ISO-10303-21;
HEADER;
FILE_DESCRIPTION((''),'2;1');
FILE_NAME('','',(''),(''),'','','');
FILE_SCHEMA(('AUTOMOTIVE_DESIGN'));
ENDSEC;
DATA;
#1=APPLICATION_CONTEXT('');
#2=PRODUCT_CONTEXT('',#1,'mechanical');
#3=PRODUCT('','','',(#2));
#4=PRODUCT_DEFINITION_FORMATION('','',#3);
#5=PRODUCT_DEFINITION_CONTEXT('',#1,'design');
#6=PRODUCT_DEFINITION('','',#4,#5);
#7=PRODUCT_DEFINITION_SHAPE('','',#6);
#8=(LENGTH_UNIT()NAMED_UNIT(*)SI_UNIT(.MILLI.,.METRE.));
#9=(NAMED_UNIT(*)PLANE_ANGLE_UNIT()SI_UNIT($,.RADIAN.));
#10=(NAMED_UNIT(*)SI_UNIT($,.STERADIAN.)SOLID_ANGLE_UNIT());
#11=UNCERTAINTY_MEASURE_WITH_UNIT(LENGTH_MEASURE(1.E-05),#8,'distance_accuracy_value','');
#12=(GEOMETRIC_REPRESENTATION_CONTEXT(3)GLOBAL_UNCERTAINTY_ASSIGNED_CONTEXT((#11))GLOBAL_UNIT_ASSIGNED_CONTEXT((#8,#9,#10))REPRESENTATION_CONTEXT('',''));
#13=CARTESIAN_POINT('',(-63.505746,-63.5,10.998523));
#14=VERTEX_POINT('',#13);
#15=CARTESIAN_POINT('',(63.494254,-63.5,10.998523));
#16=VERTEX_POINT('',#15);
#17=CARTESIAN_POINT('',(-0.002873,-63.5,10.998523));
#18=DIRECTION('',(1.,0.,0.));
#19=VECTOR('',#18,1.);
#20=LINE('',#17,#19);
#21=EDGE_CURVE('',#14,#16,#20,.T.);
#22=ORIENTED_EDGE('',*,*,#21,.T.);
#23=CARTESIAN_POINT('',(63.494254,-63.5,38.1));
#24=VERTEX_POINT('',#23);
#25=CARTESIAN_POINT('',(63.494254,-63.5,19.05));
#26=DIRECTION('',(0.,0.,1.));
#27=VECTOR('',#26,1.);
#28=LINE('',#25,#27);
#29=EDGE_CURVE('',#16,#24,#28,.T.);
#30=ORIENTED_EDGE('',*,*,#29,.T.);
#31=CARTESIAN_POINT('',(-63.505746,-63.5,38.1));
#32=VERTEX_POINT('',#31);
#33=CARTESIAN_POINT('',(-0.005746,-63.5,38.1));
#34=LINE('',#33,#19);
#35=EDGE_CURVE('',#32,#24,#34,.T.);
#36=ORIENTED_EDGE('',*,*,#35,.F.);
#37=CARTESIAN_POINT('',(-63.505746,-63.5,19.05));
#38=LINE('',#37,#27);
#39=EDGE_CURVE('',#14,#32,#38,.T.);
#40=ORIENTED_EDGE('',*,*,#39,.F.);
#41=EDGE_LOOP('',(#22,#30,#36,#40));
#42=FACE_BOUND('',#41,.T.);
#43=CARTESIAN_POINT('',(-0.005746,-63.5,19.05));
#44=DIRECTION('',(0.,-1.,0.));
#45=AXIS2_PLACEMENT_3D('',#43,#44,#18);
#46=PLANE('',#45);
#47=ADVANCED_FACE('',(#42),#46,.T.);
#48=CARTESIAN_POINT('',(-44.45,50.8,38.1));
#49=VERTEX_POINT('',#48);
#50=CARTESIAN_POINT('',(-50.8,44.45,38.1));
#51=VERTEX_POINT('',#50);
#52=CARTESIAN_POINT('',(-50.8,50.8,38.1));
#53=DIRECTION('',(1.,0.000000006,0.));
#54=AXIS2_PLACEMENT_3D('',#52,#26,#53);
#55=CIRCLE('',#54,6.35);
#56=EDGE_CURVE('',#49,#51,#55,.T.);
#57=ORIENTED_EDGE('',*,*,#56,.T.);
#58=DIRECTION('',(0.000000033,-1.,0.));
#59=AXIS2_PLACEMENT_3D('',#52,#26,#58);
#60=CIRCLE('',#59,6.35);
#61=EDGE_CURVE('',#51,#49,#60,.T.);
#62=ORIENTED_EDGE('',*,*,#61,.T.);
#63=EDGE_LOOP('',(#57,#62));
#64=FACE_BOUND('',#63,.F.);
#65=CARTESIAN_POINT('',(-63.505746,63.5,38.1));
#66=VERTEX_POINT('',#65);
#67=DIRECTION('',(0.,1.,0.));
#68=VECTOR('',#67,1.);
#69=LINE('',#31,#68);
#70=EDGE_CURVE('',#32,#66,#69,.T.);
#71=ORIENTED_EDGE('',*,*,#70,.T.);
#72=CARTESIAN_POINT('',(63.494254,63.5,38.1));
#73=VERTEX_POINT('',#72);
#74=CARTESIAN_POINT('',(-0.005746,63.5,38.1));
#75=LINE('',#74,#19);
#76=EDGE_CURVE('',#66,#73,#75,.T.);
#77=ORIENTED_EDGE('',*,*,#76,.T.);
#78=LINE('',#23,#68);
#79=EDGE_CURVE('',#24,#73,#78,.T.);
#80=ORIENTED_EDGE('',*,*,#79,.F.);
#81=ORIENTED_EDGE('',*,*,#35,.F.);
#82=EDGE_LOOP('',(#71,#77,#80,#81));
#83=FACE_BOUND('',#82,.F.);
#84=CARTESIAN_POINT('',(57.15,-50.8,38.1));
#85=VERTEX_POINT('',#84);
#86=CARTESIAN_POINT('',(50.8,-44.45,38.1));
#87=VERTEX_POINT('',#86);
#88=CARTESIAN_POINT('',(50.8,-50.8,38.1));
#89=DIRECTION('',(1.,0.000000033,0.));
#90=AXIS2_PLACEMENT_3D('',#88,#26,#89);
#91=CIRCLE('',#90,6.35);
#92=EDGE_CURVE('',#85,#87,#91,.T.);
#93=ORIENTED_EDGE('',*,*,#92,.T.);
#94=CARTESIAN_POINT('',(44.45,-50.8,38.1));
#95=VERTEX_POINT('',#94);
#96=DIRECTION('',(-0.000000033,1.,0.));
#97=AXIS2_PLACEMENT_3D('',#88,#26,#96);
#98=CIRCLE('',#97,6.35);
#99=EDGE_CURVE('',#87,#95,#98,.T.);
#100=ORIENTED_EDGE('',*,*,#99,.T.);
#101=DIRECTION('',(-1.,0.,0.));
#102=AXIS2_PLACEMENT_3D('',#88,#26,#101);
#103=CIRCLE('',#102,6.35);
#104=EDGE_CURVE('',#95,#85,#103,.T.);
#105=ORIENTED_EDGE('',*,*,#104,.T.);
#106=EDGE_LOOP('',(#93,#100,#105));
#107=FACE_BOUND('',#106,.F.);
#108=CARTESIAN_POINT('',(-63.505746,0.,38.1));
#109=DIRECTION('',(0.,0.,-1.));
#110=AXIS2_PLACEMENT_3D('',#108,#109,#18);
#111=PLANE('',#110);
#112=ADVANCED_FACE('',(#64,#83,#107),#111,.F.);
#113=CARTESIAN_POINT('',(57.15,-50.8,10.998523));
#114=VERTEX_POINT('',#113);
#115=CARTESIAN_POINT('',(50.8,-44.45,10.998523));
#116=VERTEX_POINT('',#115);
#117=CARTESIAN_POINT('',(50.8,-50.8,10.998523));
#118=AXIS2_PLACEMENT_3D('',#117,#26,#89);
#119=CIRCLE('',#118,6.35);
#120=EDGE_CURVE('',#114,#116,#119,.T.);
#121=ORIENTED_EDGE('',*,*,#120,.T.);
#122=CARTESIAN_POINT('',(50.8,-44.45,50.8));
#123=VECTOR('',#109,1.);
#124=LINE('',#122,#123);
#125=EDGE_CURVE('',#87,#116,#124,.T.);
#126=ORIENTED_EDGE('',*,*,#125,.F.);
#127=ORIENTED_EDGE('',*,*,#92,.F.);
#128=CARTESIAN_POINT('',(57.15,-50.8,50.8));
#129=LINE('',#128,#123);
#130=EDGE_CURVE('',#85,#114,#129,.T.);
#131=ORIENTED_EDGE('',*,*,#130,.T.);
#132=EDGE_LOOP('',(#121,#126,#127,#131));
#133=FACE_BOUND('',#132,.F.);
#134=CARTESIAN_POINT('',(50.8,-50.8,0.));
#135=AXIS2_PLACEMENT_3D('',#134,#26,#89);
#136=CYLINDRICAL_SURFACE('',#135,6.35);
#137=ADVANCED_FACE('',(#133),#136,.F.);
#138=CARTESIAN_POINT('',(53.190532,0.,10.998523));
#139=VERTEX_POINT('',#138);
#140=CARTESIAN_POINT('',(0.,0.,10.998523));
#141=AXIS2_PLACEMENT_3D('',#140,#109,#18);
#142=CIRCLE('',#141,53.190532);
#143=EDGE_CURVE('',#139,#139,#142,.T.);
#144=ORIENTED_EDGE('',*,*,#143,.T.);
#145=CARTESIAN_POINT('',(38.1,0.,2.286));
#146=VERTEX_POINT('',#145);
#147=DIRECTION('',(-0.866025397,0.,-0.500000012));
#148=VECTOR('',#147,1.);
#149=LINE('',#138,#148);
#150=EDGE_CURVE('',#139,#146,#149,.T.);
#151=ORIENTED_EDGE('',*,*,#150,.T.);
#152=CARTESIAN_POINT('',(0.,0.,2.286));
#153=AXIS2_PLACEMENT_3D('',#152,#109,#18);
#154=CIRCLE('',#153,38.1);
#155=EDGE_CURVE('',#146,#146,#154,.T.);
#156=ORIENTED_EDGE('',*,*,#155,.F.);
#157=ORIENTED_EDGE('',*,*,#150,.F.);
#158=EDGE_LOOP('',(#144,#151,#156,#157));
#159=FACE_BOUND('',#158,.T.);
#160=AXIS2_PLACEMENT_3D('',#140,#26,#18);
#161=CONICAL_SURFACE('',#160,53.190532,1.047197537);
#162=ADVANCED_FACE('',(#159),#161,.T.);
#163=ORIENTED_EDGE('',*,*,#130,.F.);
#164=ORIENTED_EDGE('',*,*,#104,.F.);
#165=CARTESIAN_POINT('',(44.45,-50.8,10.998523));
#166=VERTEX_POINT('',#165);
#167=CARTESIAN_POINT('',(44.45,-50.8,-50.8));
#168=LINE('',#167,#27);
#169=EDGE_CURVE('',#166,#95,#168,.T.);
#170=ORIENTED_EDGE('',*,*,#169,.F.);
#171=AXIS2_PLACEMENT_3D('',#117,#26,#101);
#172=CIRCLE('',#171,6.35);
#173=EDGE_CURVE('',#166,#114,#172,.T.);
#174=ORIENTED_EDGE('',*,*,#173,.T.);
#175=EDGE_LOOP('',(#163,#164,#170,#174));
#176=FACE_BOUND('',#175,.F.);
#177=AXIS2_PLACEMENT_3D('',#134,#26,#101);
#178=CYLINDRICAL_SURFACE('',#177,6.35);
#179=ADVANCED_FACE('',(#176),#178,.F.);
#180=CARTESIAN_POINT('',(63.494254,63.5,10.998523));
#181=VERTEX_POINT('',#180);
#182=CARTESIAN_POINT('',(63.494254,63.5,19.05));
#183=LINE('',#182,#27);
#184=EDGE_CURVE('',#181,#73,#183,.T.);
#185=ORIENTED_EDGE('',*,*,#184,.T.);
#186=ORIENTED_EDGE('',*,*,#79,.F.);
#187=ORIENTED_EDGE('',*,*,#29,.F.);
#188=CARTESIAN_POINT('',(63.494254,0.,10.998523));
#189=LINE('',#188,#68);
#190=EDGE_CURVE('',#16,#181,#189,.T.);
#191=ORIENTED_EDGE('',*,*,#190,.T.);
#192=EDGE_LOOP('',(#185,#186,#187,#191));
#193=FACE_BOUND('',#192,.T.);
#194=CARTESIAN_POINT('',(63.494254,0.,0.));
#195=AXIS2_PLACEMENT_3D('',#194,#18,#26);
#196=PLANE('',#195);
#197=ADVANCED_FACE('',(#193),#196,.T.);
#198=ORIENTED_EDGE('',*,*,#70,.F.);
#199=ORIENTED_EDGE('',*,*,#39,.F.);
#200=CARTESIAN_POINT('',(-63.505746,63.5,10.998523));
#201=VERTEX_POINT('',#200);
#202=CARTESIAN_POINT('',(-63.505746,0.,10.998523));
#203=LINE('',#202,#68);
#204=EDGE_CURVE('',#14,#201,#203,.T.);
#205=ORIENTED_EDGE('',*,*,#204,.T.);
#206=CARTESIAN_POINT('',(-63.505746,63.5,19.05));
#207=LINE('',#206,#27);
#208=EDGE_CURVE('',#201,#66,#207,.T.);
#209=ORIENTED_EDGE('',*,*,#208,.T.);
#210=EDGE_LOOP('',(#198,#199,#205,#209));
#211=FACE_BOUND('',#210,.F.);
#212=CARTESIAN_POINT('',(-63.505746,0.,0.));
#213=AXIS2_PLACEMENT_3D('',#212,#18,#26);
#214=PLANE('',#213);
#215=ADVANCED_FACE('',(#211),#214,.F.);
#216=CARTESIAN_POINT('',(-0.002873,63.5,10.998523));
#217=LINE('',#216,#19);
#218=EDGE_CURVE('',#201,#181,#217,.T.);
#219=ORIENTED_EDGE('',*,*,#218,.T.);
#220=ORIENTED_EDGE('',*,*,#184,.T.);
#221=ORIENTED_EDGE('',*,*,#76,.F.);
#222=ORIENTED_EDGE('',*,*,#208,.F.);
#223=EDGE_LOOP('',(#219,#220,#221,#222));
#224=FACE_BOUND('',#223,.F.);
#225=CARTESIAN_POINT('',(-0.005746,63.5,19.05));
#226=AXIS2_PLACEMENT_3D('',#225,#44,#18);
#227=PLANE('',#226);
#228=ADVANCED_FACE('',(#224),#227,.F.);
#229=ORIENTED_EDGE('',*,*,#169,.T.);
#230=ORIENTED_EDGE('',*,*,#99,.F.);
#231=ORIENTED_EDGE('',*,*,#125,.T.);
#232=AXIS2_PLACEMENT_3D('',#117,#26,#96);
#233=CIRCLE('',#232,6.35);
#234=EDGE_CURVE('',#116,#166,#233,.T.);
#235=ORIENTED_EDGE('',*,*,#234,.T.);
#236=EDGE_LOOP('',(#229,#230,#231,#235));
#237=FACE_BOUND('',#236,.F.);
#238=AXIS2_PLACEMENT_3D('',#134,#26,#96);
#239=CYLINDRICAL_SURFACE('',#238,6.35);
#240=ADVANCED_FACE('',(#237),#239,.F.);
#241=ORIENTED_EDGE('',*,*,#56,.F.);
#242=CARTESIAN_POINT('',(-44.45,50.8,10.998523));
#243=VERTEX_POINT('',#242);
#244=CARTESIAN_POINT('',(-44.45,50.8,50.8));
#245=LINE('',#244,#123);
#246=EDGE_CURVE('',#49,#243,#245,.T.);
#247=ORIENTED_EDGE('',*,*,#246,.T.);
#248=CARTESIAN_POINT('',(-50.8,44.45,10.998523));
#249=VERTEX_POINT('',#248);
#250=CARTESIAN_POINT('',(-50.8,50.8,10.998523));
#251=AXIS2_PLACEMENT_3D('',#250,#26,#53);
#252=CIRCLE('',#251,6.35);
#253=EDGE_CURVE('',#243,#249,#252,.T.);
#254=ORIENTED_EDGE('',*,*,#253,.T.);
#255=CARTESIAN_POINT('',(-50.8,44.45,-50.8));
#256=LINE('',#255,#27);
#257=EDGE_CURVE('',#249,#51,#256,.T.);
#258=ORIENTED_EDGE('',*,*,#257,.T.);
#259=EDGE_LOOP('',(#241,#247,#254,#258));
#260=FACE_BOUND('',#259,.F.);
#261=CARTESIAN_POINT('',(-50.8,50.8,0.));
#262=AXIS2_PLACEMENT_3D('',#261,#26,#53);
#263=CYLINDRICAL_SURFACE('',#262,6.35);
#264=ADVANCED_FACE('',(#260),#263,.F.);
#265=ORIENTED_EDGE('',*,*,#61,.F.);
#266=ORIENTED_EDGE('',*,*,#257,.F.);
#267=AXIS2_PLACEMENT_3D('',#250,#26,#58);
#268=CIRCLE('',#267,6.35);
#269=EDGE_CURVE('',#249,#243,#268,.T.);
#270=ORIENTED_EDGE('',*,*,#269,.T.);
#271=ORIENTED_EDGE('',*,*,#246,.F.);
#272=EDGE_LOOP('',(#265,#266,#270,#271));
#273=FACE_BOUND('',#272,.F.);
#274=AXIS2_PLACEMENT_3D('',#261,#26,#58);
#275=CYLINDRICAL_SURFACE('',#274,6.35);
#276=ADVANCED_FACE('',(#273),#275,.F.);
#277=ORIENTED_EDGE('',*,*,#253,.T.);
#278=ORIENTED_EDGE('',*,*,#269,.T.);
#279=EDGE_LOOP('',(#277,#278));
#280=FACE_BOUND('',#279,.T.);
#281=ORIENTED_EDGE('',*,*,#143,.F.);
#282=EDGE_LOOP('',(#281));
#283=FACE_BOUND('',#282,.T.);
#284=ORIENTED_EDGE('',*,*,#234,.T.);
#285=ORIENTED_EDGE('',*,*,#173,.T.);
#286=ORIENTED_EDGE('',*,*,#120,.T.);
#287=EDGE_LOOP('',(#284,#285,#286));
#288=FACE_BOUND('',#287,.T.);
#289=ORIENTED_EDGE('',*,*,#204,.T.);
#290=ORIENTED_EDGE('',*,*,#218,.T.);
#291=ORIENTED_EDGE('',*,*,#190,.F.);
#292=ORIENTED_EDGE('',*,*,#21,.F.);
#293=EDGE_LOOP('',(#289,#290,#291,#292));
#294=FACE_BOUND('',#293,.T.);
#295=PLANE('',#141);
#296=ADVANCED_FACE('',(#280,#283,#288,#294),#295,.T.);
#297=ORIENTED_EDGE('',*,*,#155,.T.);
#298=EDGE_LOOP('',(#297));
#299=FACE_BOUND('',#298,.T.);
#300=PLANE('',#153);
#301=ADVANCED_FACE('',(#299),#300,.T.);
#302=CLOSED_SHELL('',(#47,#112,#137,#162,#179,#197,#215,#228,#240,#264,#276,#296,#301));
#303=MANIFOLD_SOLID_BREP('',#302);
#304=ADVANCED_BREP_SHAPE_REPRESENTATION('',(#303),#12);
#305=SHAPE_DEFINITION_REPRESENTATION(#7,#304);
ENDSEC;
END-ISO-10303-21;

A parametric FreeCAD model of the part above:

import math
import FreeCAD as App
import Part
import Sketcher
Q = App.Units.Quantity


def add_polygon(sketch, points):
    """Adds a closed chain of lines whose ends are joined by coincident constraints."""
    first, n = sketch.GeometryCount, len(points)
    for a, b in zip(points, points[1:] + points[:1]):
        sketch.addGeometry(Part.LineSegment(App.Vector(*a, 0), App.Vector(*b, 0)), False)
    for i in range(n):
        sketch.addConstraint(Sketcher.Constraint("Coincident", first + i, 2, first + (i + 1) % n, 1))

doc = App.newDocument("Part")
body = doc.addObject("PartDesign::Body", "Body")

# Sketch on XZ plane
sketch1 = body.newObject("Sketcher::SketchObject", "Sketch")
sketch1.AttachmentSupport = (doc.getObject("XZ_Plane"), [""])
sketch1.MapMode = "FlatFace"
add_polygon(sketch1, [(-63.505746, 38.1), (-63.505746, 0), (63.494254, 0), (63.494254, 38.1)])  # lines 0-3
sketch1.addConstraint([
    Sketcher.Constraint("Vertical", 0),
    Sketcher.Constraint("Horizontal", 1),
    Sketcher.Constraint("Vertical", 2),
    Sketcher.Constraint("Horizontal", 3),
    Sketcher.Constraint("PointOnObject", 0, 2, -1),
    Sketcher.Constraint("DistanceX", 1, 1, 1, 2, Q("5 in")),
    Sketcher.Constraint("DistanceY", 0, 2, 0, 1, Q("1.5 in")),
    Sketcher.Constraint("DistanceX", 0, 2, -1, 1, 63.505746),
])
pad1 = body.newObject("PartDesign::Pad", "Pad")
pad1.Profile = sketch1
pad1.Length = Q("5 in")
pad1.Midplane = True

# Sketch on XZ plane
sketch2 = body.newObject("Sketcher::SketchObject", "Sketch001")
sketch2.AttachmentSupport = (doc.getObject("XZ_Plane"), [""])
sketch2.MapMode = "FlatFace"
add_polygon(sketch2, [(53.190532, 10.998523), (38.1, 2.286), (0, 2.286), (0, 0), (132.006165, 0), (132.006165, 10.998523)])  # lines 0-5
sketch2.addConstraint([
    Sketcher.Constraint("Horizontal", 1),
    Sketcher.Constraint("Vertical", 2),
    Sketcher.Constraint("Horizontal", 3),
    Sketcher.Constraint("Vertical", 4),
    Sketcher.Constraint("Horizontal", 5),
    Sketcher.Constraint("Coincident", 2, 2, -1, 1),
    Sketcher.Constraint("DistanceX", 1, 2, 1, 1, Q("1.5 in")),
    Sketcher.Constraint("Angle", 0, Q("-149.999999 deg")),
    Sketcher.Constraint("DistanceY", 2, 2, 2, 1, Q("0.09 in")),
    Sketcher.Constraint("DistanceX", 3, 1, 3, 2, 132.006165),
    Sketcher.Constraint("DistanceX", 5, 2, 5, 1, 78.815633),
])
groove = body.newObject("PartDesign::Groove", "Groove")
groove.Profile = sketch2
groove.ReferenceAxis = (sketch2, ["V_Axis"])
groove.Angle = 360

# Sketch on XY plane
sketch3 = body.newObject("Sketcher::SketchObject", "Sketch002")
sketch3.AttachmentSupport = (doc.getObject("XY_Plane"), [""])
sketch3.MapMode = "FlatFace"
sketch3.addGeometry([
    Part.ArcOfCircle(Part.Circle(App.Vector(-50.8, 50.8, 0), App.Vector(0, 0, 1), 6.35), math.radians(0), math.radians(270)),
    Part.ArcOfCircle(Part.Circle(App.Vector(-50.8, 50.8, 0), App.Vector(0, 0, 1), 6.35), math.radians(-89.999998), math.radians(-0.000002)),
], False)
sketch3.addConstraint([
    Sketcher.Constraint("Tangent", 0, 1, 1, 2),
    Sketcher.Constraint("Coincident", 1, 1, 0, 2),
    Sketcher.Constraint("Horizontal", 1, 3, 0, 1),
    Sketcher.Constraint("Vertical", 0, 3, 1, 1),
    Sketcher.Constraint("Radius", 0, Q("0.25 in")),
    Sketcher.Constraint("DistanceX", 0, 3, -1, 1, Q("2 in")),
    Sketcher.Constraint("DistanceY", -1, 1, 0, 3, Q("2 in")),
])
pocket1 = body.newObject("PartDesign::Pocket", "Pocket")
pocket1.Profile = sketch3
pocket1.Length = Q("4 in")
pocket1.Midplane = True

# Sketch on XY plane
sketch4 = body.newObject("Sketcher::SketchObject", "Sketch003")
sketch4.AttachmentSupport = (doc.getObject("XY_Plane"), [""])
sketch4.MapMode = "FlatFace"
sketch4.addGeometry([
    Part.ArcOfCircle(Part.Circle(App.Vector(50.8, -50.8, 0), App.Vector(0, 0, 1), 6.35), math.radians(90.000002), math.radians(179.999998)),
    Part.ArcOfCircle(Part.Circle(App.Vector(50.8, -50.8, 0), App.Vector(0, 0, 1), 6.35), math.radians(180), math.radians(360)),
    Part.ArcOfCircle(Part.Circle(App.Vector(50.8, -50.8, 0), App.Vector(0, 0, 1), 6.35), math.radians(0.000002), math.radians(89.999998)),
], False)
sketch4.addConstraint([
    Sketcher.Constraint("Tangent", 0, 2, 1, 1),
    Sketcher.Constraint("Tangent", 1, 2, 2, 1),
    Sketcher.Constraint("Tangent", 2, 2, 0, 1),
    Sketcher.Constraint("Horizontal", 2, 3, 0, 2),
    Sketcher.Constraint("Horizontal", 0, 2, 1, 2),
    Sketcher.Constraint("Vertical", 1, 3, 2, 2),
    Sketcher.Constraint("Radius", 0, Q("0.25 in")),
    Sketcher.Constraint("DistanceX", -1, 1, 0, 3, Q("2 in")),
    Sketcher.Constraint("DistanceY", 0, 3, -1, 1, Q("2 in")),
])
pocket2 = body.newObject("PartDesign::Pocket", "Pocket001")
pocket2.Profile = sketch4
pocket2.Length = Q("4 in")
pocket2.Midplane = True

doc.recompute()
